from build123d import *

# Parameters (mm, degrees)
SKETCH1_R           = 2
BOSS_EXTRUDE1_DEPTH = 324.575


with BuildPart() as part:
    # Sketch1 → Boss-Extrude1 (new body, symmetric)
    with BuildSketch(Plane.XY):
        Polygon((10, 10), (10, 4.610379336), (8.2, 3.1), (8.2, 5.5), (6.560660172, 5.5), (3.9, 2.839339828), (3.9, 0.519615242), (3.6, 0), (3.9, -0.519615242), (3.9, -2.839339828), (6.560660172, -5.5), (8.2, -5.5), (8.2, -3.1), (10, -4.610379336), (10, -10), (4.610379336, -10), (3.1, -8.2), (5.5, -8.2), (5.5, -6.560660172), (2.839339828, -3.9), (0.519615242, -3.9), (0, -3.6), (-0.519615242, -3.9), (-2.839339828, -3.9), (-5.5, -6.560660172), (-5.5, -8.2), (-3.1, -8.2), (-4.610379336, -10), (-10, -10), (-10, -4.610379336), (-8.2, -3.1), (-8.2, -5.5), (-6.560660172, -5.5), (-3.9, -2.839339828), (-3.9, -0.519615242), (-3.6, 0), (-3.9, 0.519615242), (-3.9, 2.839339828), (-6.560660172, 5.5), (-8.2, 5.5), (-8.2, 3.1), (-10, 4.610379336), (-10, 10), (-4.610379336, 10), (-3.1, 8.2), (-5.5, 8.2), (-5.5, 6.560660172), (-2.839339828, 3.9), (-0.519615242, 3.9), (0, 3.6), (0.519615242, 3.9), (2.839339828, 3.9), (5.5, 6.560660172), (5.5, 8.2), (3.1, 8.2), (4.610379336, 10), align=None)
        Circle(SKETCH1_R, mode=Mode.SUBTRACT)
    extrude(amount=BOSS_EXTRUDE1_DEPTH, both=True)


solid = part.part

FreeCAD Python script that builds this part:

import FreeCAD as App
import Part
import Sketcher
from FreeCAD import Vector
Q = App.Units.Quantity

doc = App.newDocument("Part")
body = doc.addObject("PartDesign::Body", "Body")

# Sketch on XY plane
sketch1 = body.newObject("Sketcher::SketchObject", "Sketch")
sketch1.AttachmentSupport = (doc.getObject("XY_Plane"), [""])
sketch1.MapMode = "FlatFace"
sketch1.addGeometry(Part.LineSegment(Vector(10, 4.610379, 0), Vector(10, 10, 0)), False)
sketch1.addGeometry(Part.LineSegment(Vector(10, 10, 0), Vector(4.610379, 10, 0)), False)
sketch1.addGeometry(Part.LineSegment(Vector(4.610379, 10, 0), Vector(3.1, 8.2, 0)), False)
sketch1.addGeometry(Part.LineSegment(Vector(3.1, 8.2, 0), Vector(5.5, 8.2, 0)), False)
sketch1.addGeometry(Part.LineSegment(Vector(5.5, 8.2, 0), Vector(5.5, 6.56066, 0)), False)
sketch1.addGeometry(Part.LineSegment(Vector(5.5, 6.56066, 0), Vector(2.83934, 3.9, 0)), False)
sketch1.addGeometry(Part.LineSegment(Vector(2.83934, 3.9, 0), Vector(0.519615, 3.9, 0)), False)
sketch1.addGeometry(Part.LineSegment(Vector(0.519615, 3.9, 0), Vector(0, 3.6, 0)), False)
sketch1.addGeometry(Part.LineSegment(Vector(0, 3.6, 0), Vector(-0.519615, 3.9, 0)), False)
sketch1.addGeometry(Part.LineSegment(Vector(-0.519615, 3.9, 0), Vector(-2.83934, 3.9, 0)), False)
sketch1.addGeometry(Part.LineSegment(Vector(-2.83934, 3.9, 0), Vector(-5.5, 6.56066, 0)), False)
sketch1.addGeometry(Part.LineSegment(Vector(-5.5, 6.56066, 0), Vector(-5.5, 8.2, 0)), False)
sketch1.addGeometry(Part.LineSegment(Vector(-5.5, 8.2, 0), Vector(-3.1, 8.2, 0)), False)
sketch1.addGeometry(Part.LineSegment(Vector(-3.1, 8.2, 0), Vector(-4.610379, 10, 0)), False)
sketch1.addGeometry(Part.LineSegment(Vector(-4.610379, 10, 0), Vector(-10, 10, 0)), False)
sketch1.addGeometry(Part.LineSegment(Vector(-10, 10, 0), Vector(-10, 4.610379, 0)), False)
sketch1.addGeometry(Part.LineSegment(Vector(-10, 4.610379, 0), Vector(-8.2, 3.1, 0)), False)
sketch1.addGeometry(Part.LineSegment(Vector(-8.2, 3.1, 0), Vector(-8.2, 5.5, 0)), False)
sketch1.addGeometry(Part.LineSegment(Vector(-8.2, 5.5, 0), Vector(-6.56066, 5.5, 0)), False)
sketch1.addGeometry(Part.LineSegment(Vector(-6.56066, 5.5, 0), Vector(-3.9, 2.83934, 0)), False)
sketch1.addGeometry(Part.LineSegment(Vector(-3.9, 2.83934, 0), Vector(-3.9, 0.519615, 0)), False)
sketch1.addGeometry(Part.LineSegment(Vector(-3.9, 0.519615, 0), Vector(-3.6, 0, 0)), False)
sketch1.addGeometry(Part.LineSegment(Vector(-3.6, 0, 0), Vector(-3.9, -0.519615, 0)), False)
sketch1.addGeometry(Part.LineSegment(Vector(-3.9, -0.519615, 0), Vector(-3.9, -2.83934, 0)), False)
sketch1.addGeometry(Part.LineSegment(Vector(-3.9, -2.83934, 0), Vector(-6.56066, -5.5, 0)), False)
sketch1.addGeometry(Part.LineSegment(Vector(-6.56066, -5.5, 0), Vector(-8.2, -5.5, 0)), False)
sketch1.addGeometry(Part.LineSegment(Vector(-8.2, -5.5, 0), Vector(-8.2, -3.1, 0)), False)
sketch1.addGeometry(Part.LineSegment(Vector(-8.2, -3.1, 0), Vector(-10, -4.610379, 0)), False)
sketch1.addGeometry(Part.LineSegment(Vector(-10, -4.610379, 0), Vector(-10, -10, 0)), False)
sketch1.addGeometry(Part.LineSegment(Vector(-10, -10, 0), Vector(-4.610379, -10, 0)), False)
sketch1.addGeometry(Part.LineSegment(Vector(-4.610379, -10, 0), Vector(-3.1, -8.2, 0)), False)
sketch1.addGeometry(Part.LineSegment(Vector(-3.1, -8.2, 0), Vector(-5.5, -8.2, 0)), False)
sketch1.addGeometry(Part.LineSegment(Vector(-5.5, -8.2, 0), Vector(-5.5, -6.56066, 0)), False)
sketch1.addGeometry(Part.LineSegment(Vector(-5.5, -6.56066, 0), Vector(-2.83934, -3.9, 0)), False)
sketch1.addGeometry(Part.LineSegment(Vector(-2.83934, -3.9, 0), Vector(-0.519615, -3.9, 0)), False)
sketch1.addGeometry(Part.LineSegment(Vector(-0.519615, -3.9, 0), Vector(0, -3.6, 0)), False)
sketch1.addGeometry(Part.LineSegment(Vector(0, -3.6, 0), Vector(0.519615, -3.9, 0)), False)
sketch1.addGeometry(Part.LineSegment(Vector(0.519615, -3.9, 0), Vector(2.83934, -3.9, 0)), False)
sketch1.addGeometry(Part.LineSegment(Vector(2.83934, -3.9, 0), Vector(5.5, -6.56066, 0)), False)
sketch1.addGeometry(Part.LineSegment(Vector(5.5, -6.56066, 0), Vector(5.5, -8.2, 0)), False)
sketch1.addGeometry(Part.LineSegment(Vector(5.5, -8.2, 0), Vector(3.1, -8.2, 0)), False)
sketch1.addGeometry(Part.LineSegment(Vector(3.1, -8.2, 0), Vector(4.610379, -10, 0)), False)
sketch1.addGeometry(Part.LineSegment(Vector(4.610379, -10, 0), Vector(10, -10, 0)), False)
sketch1.addGeometry(Part.LineSegment(Vector(10, -10, 0), Vector(10, -4.610379, 0)), False)
sketch1.addGeometry(Part.LineSegment(Vector(10, -4.610379, 0), Vector(8.2, -3.1, 0)), False)
sketch1.addGeometry(Part.LineSegment(Vector(8.2, -3.1, 0), Vector(8.2, -5.5, 0)), False)
sketch1.addGeometry(Part.LineSegment(Vector(8.2, -5.5, 0), Vector(6.56066, -5.5, 0)), False)
sketch1.addGeometry(Part.LineSegment(Vector(6.56066, -5.5, 0), Vector(3.9, -2.83934, 0)), False)
sketch1.addGeometry(Part.LineSegment(Vector(3.9, -2.83934, 0), Vector(3.9, -0.519615, 0)), False)
sketch1.addGeometry(Part.LineSegment(Vector(3.9, -0.519615, 0), Vector(3.6, 0, 0)), False)
sketch1.addGeometry(Part.LineSegment(Vector(3.6, 0, 0), Vector(3.9, 0.519615, 0)), False)
sketch1.addGeometry(Part.LineSegment(Vector(3.9, 0.519615, 0), Vector(3.9, 2.83934, 0)), False)
sketch1.addGeometry(Part.LineSegment(Vector(3.9, 2.83934, 0), Vector(6.56066, 5.5, 0)), False)
sketch1.addGeometry(Part.LineSegment(Vector(6.56066, 5.5, 0), Vector(8.2, 5.5, 0)), False)
sketch1.addGeometry(Part.LineSegment(Vector(8.2, 5.5, 0), Vector(8.2, 3.1, 0)), False)
sketch1.addGeometry(Part.LineSegment(Vector(8.2, 3.1, 0), Vector(10, 4.610379, 0)), False)
sketch1.addGeometry(Part.Circle(Vector(0, 0, 0), Vector(0, 0, 1), 2), False)
sketch1.addConstraint(Sketcher.Constraint("Coincident", 0, 2, 1, 1))
sketch1.addConstraint(Sketcher.Constraint("Coincident", 1, 2, 2, 1))
sketch1.addConstraint(Sketcher.Constraint("Coincident", 2, 2, 3, 1))
sketch1.addConstraint(Sketcher.Constraint("Coincident", 3, 2, 4, 1))
sketch1.addConstraint(Sketcher.Constraint("Coincident", 4, 2, 5, 1))
sketch1.addConstraint(Sketcher.Constraint("Coincident", 5, 2, 6, 1))
sketch1.addConstraint(Sketcher.Constraint("Coincident", 6, 2, 7, 1))
sketch1.addConstraint(Sketcher.Constraint("Coincident", 7, 2, 8, 1))
sketch1.addConstraint(Sketcher.Constraint("Coincident", 8, 2, 9, 1))
sketch1.addConstraint(Sketcher.Constraint("Coincident", 9, 2, 10, 1))
sketch1.addConstraint(Sketcher.Constraint("Coincident", 10, 2, 11, 1))
sketch1.addConstraint(Sketcher.Constraint("Coincident", 11, 2, 12, 1))
sketch1.addConstraint(Sketcher.Constraint("Coincident", 12, 2, 13, 1))
sketch1.addConstraint(Sketcher.Constraint("Coincident", 13, 2, 14, 1))
sketch1.addConstraint(Sketcher.Constraint("Coincident", 14, 2, 15, 1))
sketch1.addConstraint(Sketcher.Constraint("Coincident", 15, 2, 16, 1))
sketch1.addConstraint(Sketcher.Constraint("Coincident", 16, 2, 17, 1))
sketch1.addConstraint(Sketcher.Constraint("Coincident", 17, 2, 18, 1))
sketch1.addConstraint(Sketcher.Constraint("Coincident", 18, 2, 19, 1))
sketch1.addConstraint(Sketcher.Constraint("Coincident", 19, 2, 20, 1))
sketch1.addConstraint(Sketcher.Constraint("Coincident", 20, 2, 21, 1))
sketch1.addConstraint(Sketcher.Constraint("Coincident", 21, 2, 22, 1))
sketch1.addConstraint(Sketcher.Constraint("Coincident", 22, 2, 23, 1))
sketch1.addConstraint(Sketcher.Constraint("Coincident", 23, 2, 24, 1))
sketch1.addConstraint(Sketcher.Constraint("Coincident", 24, 2, 25, 1))
sketch1.addConstraint(Sketcher.Constraint("Coincident", 25, 2, 26, 1))
sketch1.addConstraint(Sketcher.Constraint("Coincident", 26, 2, 27, 1))
sketch1.addConstraint(Sketcher.Constraint("Coincident", 27, 2, 28, 1))
sketch1.addConstraint(Sketcher.Constraint("Coincident", 28, 2, 29, 1))
sketch1.addConstraint(Sketcher.Constraint("Coincident", 29, 2, 30, 1))
sketch1.addConstraint(Sketcher.Constraint("Coincident", 30, 2, 31, 1))
sketch1.addConstraint(Sketcher.Constraint("Coincident", 31, 2, 32, 1))
sketch1.addConstraint(Sketcher.Constraint("Coincident", 32, 2, 33, 1))
sketch1.addConstraint(Sketcher.Constraint("Coincident", 33, 2, 34, 1))
sketch1.addConstraint(Sketcher.Constraint("Coincident", 34, 2, 35, 1))
sketch1.addConstraint(Sketcher.Constraint("Coincident", 35, 2, 36, 1))
sketch1.addConstraint(Sketcher.Constraint("Coincident", 36, 2, 37, 1))
sketch1.addConstraint(Sketcher.Constraint("Coincident", 37, 2, 38, 1))
sketch1.addConstraint(Sketcher.Constraint("Coincident", 38, 2, 39, 1))
sketch1.addConstraint(Sketcher.Constraint("Coincident", 39, 2, 40, 1))
sketch1.addConstraint(Sketcher.Constraint("Coincident", 40, 2, 41, 1))
sketch1.addConstraint(Sketcher.Constraint("Coincident", 41, 2, 42, 1))
sketch1.addConstraint(Sketcher.Constraint("Coincident", 42, 2, 43, 1))
sketch1.addConstraint(Sketcher.Constraint("Coincident", 43, 2, 44, 1))
sketch1.addConstraint(Sketcher.Constraint("Coincident", 44, 2, 45, 1))
sketch1.addConstraint(Sketcher.Constraint("Coincident", 45, 2, 46, 1))
sketch1.addConstraint(Sketcher.Constraint("Coincident", 46, 2, 47, 1))
sketch1.addConstraint(Sketcher.Constraint("Coincident", 47, 2, 48, 1))
sketch1.addConstraint(Sketcher.Constraint("Coincident", 48, 2, 49, 1))
sketch1.addConstraint(Sketcher.Constraint("Coincident", 49, 2, 50, 1))
sketch1.addConstraint(Sketcher.Constraint("Coincident", 50, 2, 51, 1))
sketch1.addConstraint(Sketcher.Constraint("Coincident", 51, 2, 52, 1))
sketch1.addConstraint(Sketcher.Constraint("Coincident", 52, 2, 53, 1))
sketch1.addConstraint(Sketcher.Constraint("Coincident", 53, 2, 54, 1))
sketch1.addConstraint(Sketcher.Constraint("Coincident", 54, 2, 55, 1))
sketch1.addConstraint(Sketcher.Constraint("Coincident", 55, 2, 0, 1))
sketch1.addConstraint(Sketcher.Constraint("Vertical", 0))
sketch1.addConstraint(Sketcher.Constraint("Horizontal", 1))
sketch1.addConstraint(Sketcher.Constraint("Horizontal", 3))
sketch1.addConstraint(Sketcher.Constraint("Vertical", 4))
sketch1.addConstraint(Sketcher.Constraint("Horizontal", 6))
sketch1.addConstraint(Sketcher.Constraint("Horizontal", 9))
sketch1.addConstraint(Sketcher.Constraint("Vertical", 11))
sketch1.addConstraint(Sketcher.Constraint("Horizontal", 12))
sketch1.addConstraint(Sketcher.Constraint("Horizontal", 14))
sketch1.addConstraint(Sketcher.Constraint("Vertical", 15))
sketch1.addConstraint(Sketcher.Constraint("Vertical", 17))
sketch1.addConstraint(Sketcher.Constraint("Horizontal", 18))
sketch1.addConstraint(Sketcher.Constraint("Vertical", 20))
sketch1.addConstraint(Sketcher.Constraint("Vertical", 23))
sketch1.addConstraint(Sketcher.Constraint("Horizontal", 25))
sketch1.addConstraint(Sketcher.Constraint("Vertical", 26))
sketch1.addConstraint(Sketcher.Constraint("Vertical", 28))
sketch1.addConstraint(Sketcher.Constraint("Horizontal", 29))
sketch1.addConstraint(Sketcher.Constraint("Horizontal", 31))
sketch1.addConstraint(Sketcher.Constraint("Vertical", 32))
sketch1.addConstraint(Sketcher.Constraint("Horizontal", 34))
sketch1.addConstraint(Sketcher.Constraint("Horizontal", 37))
sketch1.addConstraint(Sketcher.Constraint("Vertical", 39))
sketch1.addConstraint(Sketcher.Constraint("Horizontal", 40))
sketch1.addConstraint(Sketcher.Constraint("Horizontal", 42))
sketch1.addConstraint(Sketcher.Constraint("Vertical", 43))
sketch1.addConstraint(Sketcher.Constraint("Vertical", 45))
sketch1.addConstraint(Sketcher.Constraint("Horizontal", 46))
sketch1.addConstraint(Sketcher.Constraint("Vertical", 48))
sketch1.addConstraint(Sketcher.Constraint("Vertical", 51))
sketch1.addConstraint(Sketcher.Constraint("Horizontal", 53))
sketch1.addConstraint(Sketcher.Constraint("Vertical", 54))
sketch1.addConstraint(Sketcher.Constraint("Coincident", 56, 3, -1, 1))
sketch1.addConstraint(Sketcher.Constraint("Symmetric", 0, 2, 28, 2, -1, 1))
sketch1.addConstraint(Sketcher.Constraint("Symmetric", 2, 2, 30, 2, -1, 1))
sketch1.addConstraint(Sketcher.Constraint("Symmetric", 4, 2, 32, 2, -1, 1))
sketch1.addConstraint(Sketcher.Constraint("Symmetric", 5, 2, 33, 2, -1, 1))
sketch1.addConstraint(Sketcher.Constraint("Symmetric", 7, 2, 35, 2, -1, 1))
sketch1.addConstraint(Sketcher.Constraint("Symmetric", 8, 2, 36, 2, -1, 1))
sketch1.addConstraint(Sketcher.Constraint("Symmetric", 10, 2, 38, 2, -1, 1))
sketch1.addConstraint(Sketcher.Constraint("Symmetric", 12, 2, 40, 2, -1, 1))
sketch1.addConstraint(Sketcher.Constraint("Symmetric", 13, 2, 41, 2, -1, 1))
sketch1.addConstraint(Sketcher.Constraint("Symmetric", 15, 2, 43, 2, -1, 1))
sketch1.addConstraint(Sketcher.Constraint("Symmetric", 16, 2, 44, 2, -1, 1))
sketch1.addConstraint(Sketcher.Constraint("Symmetric", 18, 2, 46, 2, -1, 1))
sketch1.addConstraint(Sketcher.Constraint("Symmetric", 19, 2, 47, 2, -1, 1))
sketch1.addConstraint(Sketcher.Constraint("Symmetric", 21, 2, 49, 2, -1, 1))
sketch1.addConstraint(Sketcher.Constraint("Symmetric", 22, 2, 50, 2, -1, 1))
sketch1.addConstraint(Sketcher.Constraint("Symmetric", 24, 2, 52, 2, -1, 1))
sketch1.addConstraint(Sketcher.Constraint("Symmetric", 26, 2, 54, 2, -1, 1))
sketch1.addConstraint(Sketcher.Constraint("Symmetric", 6, 2, 8, 2, -2))
sketch1.addConstraint(Sketcher.Constraint("Symmetric", 4, 2, 10, 2, -2))
sketch1.addConstraint(Sketcher.Constraint("Symmetric", 2, 2, 12, 2, -2))
sketch1.addConstraint(Sketcher.Constraint("Symmetric", 1, 2, 13, 2, -2))
sketch1.addConstraint(Sketcher.Constraint("Symmetric", 27, 2, 43, 2, -2))
sketch1.addConstraint(Sketcher.Constraint("Symmetric", 26, 2, 44, 2, -2))
sketch1.addConstraint(Sketcher.Constraint("Symmetric", 24, 2, 46, 2, -2))
sketch1.addConstraint(Sketcher.Constraint("Symmetric", 23, 2, 47, 2, -2))
sketch1.addConstraint(Sketcher.Constraint("PointOnObject", 7, 2, -2))
sketch1.addConstraint(Sketcher.Constraint("PointOnObject", 21, 2, -1))
sketch1.addConstraint(Sketcher.Constraint("Perpendicular", 5, 10))
sketch1.addConstraint(Sketcher.Constraint("Perpendicular", 2, 16))
sketch1.addConstraint(Sketcher.Constraint("Parallel", 10, 19))
sketch1.addConstraint(Sketcher.Constraint("Perpendicular", 7, 21))
sketch1.addConstraint(Sketcher.Constraint("Perpendicular", 8, 22))
sketch1.addConstraint(Sketcher.Constraint("Perpendicular", 19, 24))
sketch1.addConstraint(Sketcher.Constraint("Perpendicular", 16, 30))
sketch1.addConstraint(Sketcher.Constraint("Perpendicular", 21, 35))
sketch1.addConstraint(Sketcher.Constraint("Perpendicular", 33, 38))
sketch1.addConstraint(Sketcher.Constraint("Perpendicular", 35, 49))
sketch1.addConstraint(Sketcher.Constraint("Perpendicular", 47, 52))
sketch1.addConstraint(Sketcher.Constraint("Perpendicular", 41, 55))
sketch1.addConstraint(Sketcher.Constraint("Equal", 42, 0))
sketch1.addConstraint(Sketcher.Constraint("Equal", 53, 4))
sketch1.addConstraint(Sketcher.Constraint("Equal", 40, 17))
sketch1.addConstraint(Sketcher.Constraint("Equal", 37, 20))
sketch1.addConstraint(Sketcher.Constraint("Equal", 13, 16))
sketch1.addConstraint(Sketcher.Constraint("Equal", 10, 19))
sketch1.addConstraint(Sketcher.Constraint("Equal", 8, 21))
sketch1.addConstraint(Sketcher.Constraint("Diameter", 56, Q("4 mm")))
sketch1.addConstraint(Sketcher.Constraint("Angle", 2, Q("-130 deg")))
sketch1.addConstraint(Sketcher.Constraint("Angle", 7, Q("-150 deg")))
sketch1.addConstraint(Sketcher.Constraint("DistanceX", 3, 1, 3, 2, Q("2.4 mm")))
sketch1.addConstraint(Sketcher.Constraint("DistanceX", -1, 1, 0, 2, Q("10 mm")))
sketch1.addConstraint(Sketcher.Constraint("Distance", 7, Q("0.6 mm")))
sketch1.addConstraint(Sketcher.Constraint("DistanceX", -1, 1, 2, 2, Q("3.1 mm")))
sketch1.addConstraint(Sketcher.Constraint("DistanceY", -1, 1, 2, 2, Q("8.2 mm")))
sketch1.addConstraint(Sketcher.Constraint("DistanceY", -1, 1, 5, 2, Q("3.9 mm")))
sketch1.addConstraint(Sketcher.Constraint("DistanceX", 18, 1, 18, 2, Q("1.63934 mm")))
pad1 = body.newObject("PartDesign::Pad", "Pad")
pad1.Profile = sketch1
pad1.Length = 649.15
pad1.Midplane = True

doc.recompute()
